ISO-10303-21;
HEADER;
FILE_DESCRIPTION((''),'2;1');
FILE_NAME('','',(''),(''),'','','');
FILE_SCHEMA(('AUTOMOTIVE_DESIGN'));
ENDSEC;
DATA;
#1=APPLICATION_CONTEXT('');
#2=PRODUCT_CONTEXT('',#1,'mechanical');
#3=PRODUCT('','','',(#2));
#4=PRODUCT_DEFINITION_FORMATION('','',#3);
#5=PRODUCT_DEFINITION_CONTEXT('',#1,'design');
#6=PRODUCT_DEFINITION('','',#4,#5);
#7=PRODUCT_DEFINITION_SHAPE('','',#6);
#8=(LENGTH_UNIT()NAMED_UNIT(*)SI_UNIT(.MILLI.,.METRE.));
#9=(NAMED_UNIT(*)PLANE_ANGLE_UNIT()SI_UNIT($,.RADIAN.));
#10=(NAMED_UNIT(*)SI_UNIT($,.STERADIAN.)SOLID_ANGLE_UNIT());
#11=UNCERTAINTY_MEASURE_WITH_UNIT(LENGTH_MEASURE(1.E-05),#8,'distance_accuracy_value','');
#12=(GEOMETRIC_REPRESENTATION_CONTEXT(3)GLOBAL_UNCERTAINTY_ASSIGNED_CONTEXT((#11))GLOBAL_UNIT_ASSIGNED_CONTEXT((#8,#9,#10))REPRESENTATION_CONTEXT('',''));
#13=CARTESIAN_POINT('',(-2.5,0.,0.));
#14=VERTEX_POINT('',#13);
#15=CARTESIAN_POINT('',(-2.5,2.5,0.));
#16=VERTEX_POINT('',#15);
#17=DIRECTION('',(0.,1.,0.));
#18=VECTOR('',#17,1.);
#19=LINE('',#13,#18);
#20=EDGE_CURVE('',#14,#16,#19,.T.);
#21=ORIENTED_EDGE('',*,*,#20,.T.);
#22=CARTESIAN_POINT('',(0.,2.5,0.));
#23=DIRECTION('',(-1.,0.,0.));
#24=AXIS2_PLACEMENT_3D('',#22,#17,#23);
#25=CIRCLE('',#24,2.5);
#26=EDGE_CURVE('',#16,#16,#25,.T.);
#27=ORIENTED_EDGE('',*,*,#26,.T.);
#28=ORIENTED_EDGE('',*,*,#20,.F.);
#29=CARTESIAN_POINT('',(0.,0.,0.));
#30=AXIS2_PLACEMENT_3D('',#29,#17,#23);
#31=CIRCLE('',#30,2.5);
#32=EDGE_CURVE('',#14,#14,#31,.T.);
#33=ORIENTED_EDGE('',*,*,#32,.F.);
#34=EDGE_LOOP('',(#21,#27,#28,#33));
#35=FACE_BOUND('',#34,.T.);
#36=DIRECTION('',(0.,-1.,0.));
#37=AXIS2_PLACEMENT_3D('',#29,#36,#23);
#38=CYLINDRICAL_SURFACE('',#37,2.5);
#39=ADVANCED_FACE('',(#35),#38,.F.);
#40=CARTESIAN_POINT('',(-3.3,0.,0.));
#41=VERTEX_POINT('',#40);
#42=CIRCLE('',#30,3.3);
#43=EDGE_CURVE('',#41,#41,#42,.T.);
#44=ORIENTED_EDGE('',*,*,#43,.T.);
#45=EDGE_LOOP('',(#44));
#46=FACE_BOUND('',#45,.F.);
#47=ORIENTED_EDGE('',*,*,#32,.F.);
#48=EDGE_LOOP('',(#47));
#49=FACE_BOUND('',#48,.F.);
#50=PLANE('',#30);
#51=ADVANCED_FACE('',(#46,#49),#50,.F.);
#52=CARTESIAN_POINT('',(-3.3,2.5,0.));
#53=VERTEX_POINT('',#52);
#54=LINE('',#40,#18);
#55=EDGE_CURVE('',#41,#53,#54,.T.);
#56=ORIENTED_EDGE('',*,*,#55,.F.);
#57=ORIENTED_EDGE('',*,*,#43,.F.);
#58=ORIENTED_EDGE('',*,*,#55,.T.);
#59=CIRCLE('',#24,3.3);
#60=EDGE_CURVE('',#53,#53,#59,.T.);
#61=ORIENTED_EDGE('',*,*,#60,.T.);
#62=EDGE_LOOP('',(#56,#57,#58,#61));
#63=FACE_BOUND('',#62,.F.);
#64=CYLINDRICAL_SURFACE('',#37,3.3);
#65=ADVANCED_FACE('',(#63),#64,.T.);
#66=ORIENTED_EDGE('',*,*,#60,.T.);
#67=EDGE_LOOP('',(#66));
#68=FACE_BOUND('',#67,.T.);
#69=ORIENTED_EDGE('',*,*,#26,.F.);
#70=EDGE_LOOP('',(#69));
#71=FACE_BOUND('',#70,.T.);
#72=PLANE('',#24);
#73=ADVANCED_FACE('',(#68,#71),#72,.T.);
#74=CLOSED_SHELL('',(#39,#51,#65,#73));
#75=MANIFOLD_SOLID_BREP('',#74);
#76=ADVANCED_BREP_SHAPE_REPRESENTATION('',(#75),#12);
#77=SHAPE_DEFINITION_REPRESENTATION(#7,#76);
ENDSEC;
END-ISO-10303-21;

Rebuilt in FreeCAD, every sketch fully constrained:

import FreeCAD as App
import Part
import Sketcher
from FreeCAD import Vector

doc = App.newDocument("Part")
body = doc.addObject("PartDesign::Body", "Body")

# Sketch on XZ plane
sketch1 = body.newObject("Sketcher::SketchObject", "Sketch")
sketch1.AttachmentSupport = (doc.getObject("XZ_Plane"), [""])
sketch1.MapMode = "FlatFace"
sketch1.addGeometry(Part.Circle(Vector(0, 0, 0), Vector(0, 0, 1), 3.3), False)
sketch1.addGeometry(Part.Circle(Vector(0, 0, 0), Vector(0, 0, 1), 2.5), False)
sketch1.addConstraint(Sketcher.Constraint("Coincident", 0, 3, -1, 1))
sketch1.addConstraint(Sketcher.Constraint("Coincident", 1, 3, -1, 1))
sketch1.addConstraint(Sketcher.Constraint("Diameter", 1, 5.0))
sketch1.addConstraint(Sketcher.Constraint("Diameter", 0, 6.6))
pad1 = body.newObject("PartDesign::Pad", "Pad")
pad1.Profile = sketch1
pad1.Length = 2.5
pad1.Reversed = True

doc.recompute()
